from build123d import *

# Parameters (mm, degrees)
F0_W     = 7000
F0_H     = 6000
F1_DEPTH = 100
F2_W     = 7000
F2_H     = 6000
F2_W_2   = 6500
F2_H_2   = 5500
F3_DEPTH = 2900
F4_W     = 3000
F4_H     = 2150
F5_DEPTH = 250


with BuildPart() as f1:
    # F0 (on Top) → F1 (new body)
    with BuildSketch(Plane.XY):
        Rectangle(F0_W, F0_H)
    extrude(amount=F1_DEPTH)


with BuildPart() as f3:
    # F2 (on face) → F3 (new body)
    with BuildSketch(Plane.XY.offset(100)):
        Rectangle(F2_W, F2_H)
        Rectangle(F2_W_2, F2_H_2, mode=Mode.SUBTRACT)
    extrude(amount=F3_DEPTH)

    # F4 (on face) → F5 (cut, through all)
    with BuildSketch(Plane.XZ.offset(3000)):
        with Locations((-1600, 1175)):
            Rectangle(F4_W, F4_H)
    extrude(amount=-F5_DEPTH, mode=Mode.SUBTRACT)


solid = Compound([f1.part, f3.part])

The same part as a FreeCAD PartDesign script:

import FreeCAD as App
import Part
import Sketcher

doc = App.newDocument("Part")
body = doc.addObject("PartDesign::Body", "Body")

# Sketch on XY plane
sketch1 = doc.addObject("Sketcher::SketchObject", "Sketch")
body.addObject(sketch1)
sketch1.AttachmentSupport = (doc.XY_Plane, [""])
sketch1.MapMode = "FlatFace"
sketch1.addGeometry([
    Part.LineSegment(App.Vector(-3500, 3000, 0), App.Vector(-3500, -3000, 0)),
    Part.LineSegment(App.Vector(-3500, -3000, 0), App.Vector(3500, -3000, 0)),
    Part.LineSegment(App.Vector(3500, -3000, 0), App.Vector(3500, 3000, 0)),
    Part.LineSegment(App.Vector(3500, 3000, 0), App.Vector(-3500, 3000, 0)),
], False)
sketch1.addConstraint([
    Sketcher.Constraint("Coincident", 0, 2, 1, 1),
    Sketcher.Constraint("Coincident", 1, 2, 2, 1),
    Sketcher.Constraint("Coincident", 2, 2, 3, 1),
    Sketcher.Constraint("Coincident", 3, 2, 0, 1),
    Sketcher.Constraint("Vertical", 0),
    Sketcher.Constraint("Horizontal", 1),
    Sketcher.Constraint("Vertical", 2),
    Sketcher.Constraint("Horizontal", 3),
    Sketcher.Constraint("Symmetric", 0, 2, 2, 2, -1, 1),
    Sketcher.Constraint("DistanceX", 1, 1, 1, 2, 7000.0),
    Sketcher.Constraint("DistanceY", 0, 2, 0, 1, 6000.0),
])
pad1 = doc.addObject("PartDesign::Pad", "Pad")
body.addObject(pad1)
pad1.Profile = sketch1
pad1.Length = 100
body2 = doc.addObject("PartDesign::Body", "Body001")

# Sketch on XY plane
sketch2 = doc.addObject("Sketcher::SketchObject", "Sketch001")
body2.addObject(sketch2)
sketch2.AttachmentSupport = (doc.getObject("XY_Plane001"), [""])
sketch2.MapMode = "FlatFace"
sketch2.AttachmentOffset = App.Placement(App.Vector(0, 0, 100), App.Rotation())
sketch2.addGeometry([
    Part.LineSegment(App.Vector(-3500, 3000, 0), App.Vector(-3500, -3000, 0)),  # 0
    Part.LineSegment(App.Vector(-3500, -3000, 0), App.Vector(3500, -3000, 0)),  # 1
    Part.LineSegment(App.Vector(3500, -3000, 0), App.Vector(3500, 3000, 0)),  # 2
    Part.LineSegment(App.Vector(3500, 3000, 0), App.Vector(-3500, 3000, 0)),  # 3
    Part.LineSegment(App.Vector(3250, -2750, 0), App.Vector(-3250, -2750, 0)),  # 4
    Part.LineSegment(App.Vector(-3250, -2750, 0), App.Vector(-3250, 2750, 0)),  # 5
    Part.LineSegment(App.Vector(-3250, 2750, 0), App.Vector(3250, 2750, 0)),  # 6
    Part.LineSegment(App.Vector(3250, 2750, 0), App.Vector(3250, -2750, 0)),  # 7
], False)
sketch2.addConstraint([
    Sketcher.Constraint("Coincident", 0, 2, 1, 1),
    Sketcher.Constraint("Coincident", 1, 2, 2, 1),
    Sketcher.Constraint("Coincident", 2, 2, 3, 1),
    Sketcher.Constraint("Coincident", 3, 2, 0, 1),
    Sketcher.Constraint("Coincident", 4, 2, 5, 1),
    Sketcher.Constraint("Coincident", 5, 2, 6, 1),
    Sketcher.Constraint("Coincident", 6, 2, 7, 1),
    Sketcher.Constraint("Coincident", 7, 2, 4, 1),
    Sketcher.Constraint("Vertical", 0),
    Sketcher.Constraint("Horizontal", 1),
    Sketcher.Constraint("Vertical", 2),
    Sketcher.Constraint("Horizontal", 3),
    Sketcher.Constraint("Horizontal", 4),
    Sketcher.Constraint("Vertical", 5),
    Sketcher.Constraint("Horizontal", 6),
    Sketcher.Constraint("Vertical", 7),
    Sketcher.Constraint("Symmetric", 0, 2, 2, 2, -1, 1),
    Sketcher.Constraint("Symmetric", 4, 2, 6, 2, -1, 1),
    Sketcher.Constraint("DistanceX", 1, 1, 1, 2, 7000.0),
    Sketcher.Constraint("DistanceX", 4, 2, 4, 1, 6500.0),
    Sketcher.Constraint("DistanceY", 0, 2, 0, 1, 6000.0),
    Sketcher.Constraint("DistanceY", 5, 1, 5, 2, 5500.0),
])
pad2 = doc.addObject("PartDesign::Pad", "Pad001")
body2.addObject(pad2)
pad2.Profile = sketch2
pad2.Length = 2900

# Sketch on XZ plane
sketch3 = doc.addObject("Sketcher::SketchObject", "Sketch002")
body2.addObject(sketch3)
sketch3.AttachmentSupport = (doc.getObject("XZ_Plane001"), [""])
sketch3.MapMode = "FlatFace"
sketch3.AttachmentOffset = App.Placement(App.Vector(0, 0, 3000), App.Rotation())
sketch3.addGeometry([
    Part.LineSegment(App.Vector(-3100, 2250, 0), App.Vector(-3100, 100, 0)),
    Part.LineSegment(App.Vector(-3100, 100, 0), App.Vector(-100, 100, 0)),
    Part.LineSegment(App.Vector(-100, 100, 0), App.Vector(-100, 2250, 0)),
    Part.LineSegment(App.Vector(-100, 2250, 0), App.Vector(-3100, 2250, 0)),
], False)
sketch3.addConstraint([
    Sketcher.Constraint("Coincident", 0, 2, 1, 1),
    Sketcher.Constraint("Coincident", 1, 2, 2, 1),
    Sketcher.Constraint("Coincident", 2, 2, 3, 1),
    Sketcher.Constraint("Coincident", 3, 2, 0, 1),
    Sketcher.Constraint("Vertical", 0),
    Sketcher.Constraint("Horizontal", 1),
    Sketcher.Constraint("Vertical", 2),
    Sketcher.Constraint("Horizontal", 3),
    Sketcher.Constraint("DistanceX", 1, 1, 1, 2, 3000.0),
    Sketcher.Constraint("DistanceY", 0, 2, 0, 1, 2150.0),
    Sketcher.Constraint("DistanceX", 0, 2, -1, 1, 3100.0),
    Sketcher.Constraint("DistanceY", -1, 1, 0, 2, 100.0),
])
pocket1 = doc.addObject("PartDesign::Pocket", "Pocket")
body2.addObject(pocket1)
pocket1.Profile = sketch3
pocket1.Length = 250

doc.recompute()
